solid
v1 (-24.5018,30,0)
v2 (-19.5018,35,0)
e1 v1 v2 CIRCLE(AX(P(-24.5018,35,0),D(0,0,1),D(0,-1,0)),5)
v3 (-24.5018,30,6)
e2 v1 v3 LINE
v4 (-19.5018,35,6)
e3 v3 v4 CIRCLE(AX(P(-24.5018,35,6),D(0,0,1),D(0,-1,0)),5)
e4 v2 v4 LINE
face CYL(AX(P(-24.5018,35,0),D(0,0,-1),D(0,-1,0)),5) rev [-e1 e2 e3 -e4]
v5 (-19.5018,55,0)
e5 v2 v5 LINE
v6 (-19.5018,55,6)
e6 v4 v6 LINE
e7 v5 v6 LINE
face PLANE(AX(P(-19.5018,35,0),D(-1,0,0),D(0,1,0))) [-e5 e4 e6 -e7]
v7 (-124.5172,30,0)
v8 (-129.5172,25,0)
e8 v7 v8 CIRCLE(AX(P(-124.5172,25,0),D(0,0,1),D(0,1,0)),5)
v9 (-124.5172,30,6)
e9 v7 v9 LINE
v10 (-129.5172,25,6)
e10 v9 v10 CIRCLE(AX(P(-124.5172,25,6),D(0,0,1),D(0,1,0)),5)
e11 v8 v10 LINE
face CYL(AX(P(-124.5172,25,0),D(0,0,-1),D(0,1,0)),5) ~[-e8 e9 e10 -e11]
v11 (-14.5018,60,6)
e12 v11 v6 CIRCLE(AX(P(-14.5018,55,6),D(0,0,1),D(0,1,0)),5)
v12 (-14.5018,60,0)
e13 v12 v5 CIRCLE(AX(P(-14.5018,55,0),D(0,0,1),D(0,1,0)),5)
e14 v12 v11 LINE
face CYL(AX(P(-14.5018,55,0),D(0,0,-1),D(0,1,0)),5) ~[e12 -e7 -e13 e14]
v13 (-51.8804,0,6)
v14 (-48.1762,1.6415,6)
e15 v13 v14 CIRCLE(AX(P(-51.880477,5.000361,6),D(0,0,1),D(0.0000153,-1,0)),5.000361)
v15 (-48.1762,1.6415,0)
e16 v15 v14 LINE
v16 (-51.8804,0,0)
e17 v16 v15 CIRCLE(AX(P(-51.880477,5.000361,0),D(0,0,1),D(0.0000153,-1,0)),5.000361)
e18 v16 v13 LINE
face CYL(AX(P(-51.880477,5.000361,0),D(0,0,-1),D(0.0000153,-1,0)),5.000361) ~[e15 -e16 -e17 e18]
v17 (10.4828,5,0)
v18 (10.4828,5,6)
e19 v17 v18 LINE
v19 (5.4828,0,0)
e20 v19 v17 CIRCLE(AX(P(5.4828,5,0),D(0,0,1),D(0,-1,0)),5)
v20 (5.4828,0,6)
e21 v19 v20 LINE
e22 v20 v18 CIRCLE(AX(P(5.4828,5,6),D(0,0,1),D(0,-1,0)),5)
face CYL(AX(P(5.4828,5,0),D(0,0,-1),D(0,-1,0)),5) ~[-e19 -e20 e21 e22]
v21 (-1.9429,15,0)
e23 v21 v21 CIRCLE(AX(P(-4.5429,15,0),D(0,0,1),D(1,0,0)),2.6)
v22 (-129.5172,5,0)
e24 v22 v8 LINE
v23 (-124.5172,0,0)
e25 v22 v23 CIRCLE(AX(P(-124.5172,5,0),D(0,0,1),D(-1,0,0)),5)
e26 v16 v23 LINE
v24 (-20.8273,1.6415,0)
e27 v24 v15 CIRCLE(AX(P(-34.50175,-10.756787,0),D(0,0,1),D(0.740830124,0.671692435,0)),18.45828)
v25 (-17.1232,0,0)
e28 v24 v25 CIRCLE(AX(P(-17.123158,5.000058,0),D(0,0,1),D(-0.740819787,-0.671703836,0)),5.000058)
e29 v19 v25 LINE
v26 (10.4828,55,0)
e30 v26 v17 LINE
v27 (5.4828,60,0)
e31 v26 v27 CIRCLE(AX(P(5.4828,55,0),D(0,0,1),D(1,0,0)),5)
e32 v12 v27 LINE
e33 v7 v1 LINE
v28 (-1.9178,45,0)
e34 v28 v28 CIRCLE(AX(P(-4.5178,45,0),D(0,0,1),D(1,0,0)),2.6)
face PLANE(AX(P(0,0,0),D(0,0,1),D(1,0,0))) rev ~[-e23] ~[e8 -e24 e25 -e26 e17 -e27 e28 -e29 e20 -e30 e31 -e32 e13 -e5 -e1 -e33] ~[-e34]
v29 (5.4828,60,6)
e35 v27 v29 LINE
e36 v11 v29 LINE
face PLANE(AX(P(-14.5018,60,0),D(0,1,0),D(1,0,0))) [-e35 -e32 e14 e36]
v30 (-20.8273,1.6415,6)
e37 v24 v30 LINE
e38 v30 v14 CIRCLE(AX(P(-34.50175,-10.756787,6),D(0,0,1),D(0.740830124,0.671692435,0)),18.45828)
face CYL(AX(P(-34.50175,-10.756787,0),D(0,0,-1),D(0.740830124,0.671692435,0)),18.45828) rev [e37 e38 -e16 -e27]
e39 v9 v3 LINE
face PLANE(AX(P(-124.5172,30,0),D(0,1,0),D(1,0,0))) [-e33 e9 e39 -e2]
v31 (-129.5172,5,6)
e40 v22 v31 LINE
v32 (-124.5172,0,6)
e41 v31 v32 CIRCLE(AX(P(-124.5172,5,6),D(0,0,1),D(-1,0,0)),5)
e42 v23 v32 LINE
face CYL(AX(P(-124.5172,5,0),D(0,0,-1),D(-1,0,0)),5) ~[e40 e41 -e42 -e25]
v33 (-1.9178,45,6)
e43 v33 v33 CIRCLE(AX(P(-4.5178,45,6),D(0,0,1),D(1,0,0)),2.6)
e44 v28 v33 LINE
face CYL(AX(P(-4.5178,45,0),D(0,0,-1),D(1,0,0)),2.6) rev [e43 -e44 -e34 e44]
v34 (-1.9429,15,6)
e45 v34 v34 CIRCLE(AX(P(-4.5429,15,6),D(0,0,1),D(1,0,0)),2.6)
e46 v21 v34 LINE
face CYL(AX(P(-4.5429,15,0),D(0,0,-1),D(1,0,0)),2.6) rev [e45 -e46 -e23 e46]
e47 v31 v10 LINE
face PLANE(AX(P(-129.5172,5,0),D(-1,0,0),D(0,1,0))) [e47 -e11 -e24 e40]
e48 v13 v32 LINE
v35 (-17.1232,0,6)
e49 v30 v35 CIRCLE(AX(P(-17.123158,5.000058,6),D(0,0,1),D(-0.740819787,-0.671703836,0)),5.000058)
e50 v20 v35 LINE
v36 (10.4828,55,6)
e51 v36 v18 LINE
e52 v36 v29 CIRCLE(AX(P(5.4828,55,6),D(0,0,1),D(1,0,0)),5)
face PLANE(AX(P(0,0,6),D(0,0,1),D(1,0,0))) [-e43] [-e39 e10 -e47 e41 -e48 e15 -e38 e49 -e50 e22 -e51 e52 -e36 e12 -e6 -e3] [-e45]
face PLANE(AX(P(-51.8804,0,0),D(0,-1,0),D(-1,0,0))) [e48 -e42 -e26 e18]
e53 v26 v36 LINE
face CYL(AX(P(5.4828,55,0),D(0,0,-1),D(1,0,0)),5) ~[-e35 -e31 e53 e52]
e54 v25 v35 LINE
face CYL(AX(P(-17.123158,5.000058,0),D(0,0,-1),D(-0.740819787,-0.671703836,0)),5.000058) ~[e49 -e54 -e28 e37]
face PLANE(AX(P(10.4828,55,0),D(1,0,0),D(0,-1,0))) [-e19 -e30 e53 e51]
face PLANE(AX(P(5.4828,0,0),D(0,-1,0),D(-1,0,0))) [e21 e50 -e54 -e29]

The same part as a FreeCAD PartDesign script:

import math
import FreeCAD as App
import Part
import Sketcher
from FreeCAD import Vector
Q = App.Units.Quantity

doc = App.newDocument("Part")
body = doc.addObject("PartDesign::Body", "Body")

# Sketch on XY plane
sketch1 = body.newObject("Sketcher::SketchObject", "Sketch")
sketch1.AttachmentSupport = (doc.getObject("XY_Plane"), [""])
sketch1.MapMode = "FlatFace"
sketch1.addGeometry([
    Part.LineSegment(Vector(-17.1, 0, 0), Vector(5.5, 0, 0)),  # 0
    Part.ArcOfCircle(Part.Circle(Vector(5.5, 5, 0), Vector(0, 0, 1), 5), math.radians(-90), math.radians(0)),  # 1
    Part.LineSegment(Vector(10.5, 5, 0), Vector(10.5, 55, 0)),  # 2
    Part.ArcOfCircle(Part.Circle(Vector(5.5, 55, 0), Vector(0, 0, 1), 5), math.radians(0), math.radians(90)),  # 3
    Part.LineSegment(Vector(5.5, 60, 0), Vector(-14.5, 60, 0)),  # 4
    Part.ArcOfCircle(Part.Circle(Vector(-14.5, 55, 0), Vector(0, 0, 1), 5), math.radians(90), math.radians(180)),  # 5
    Part.LineSegment(Vector(-19.5, 55, 0), Vector(-19.5, 35, 0)),  # 6
    Part.ArcOfCircle(Part.Circle(Vector(-24.5, 35, 0), Vector(0, 0, 1), 5), math.radians(-90), math.radians(0)),  # 7
    Part.LineSegment(Vector(-24.5, 30, 0), Vector(-124.5, 30, 0)),  # 8
    Part.ArcOfCircle(Part.Circle(Vector(-124.5, 25, 0), Vector(0, 0, 1), 5), math.radians(90), math.radians(180)),  # 9
    Part.LineSegment(Vector(-129.5, 25, 0), Vector(-129.5, 5, 0)),  # 10
    Part.ArcOfCircle(Part.Circle(Vector(-124.5, 5, 0), Vector(0, 0, 1), 5), math.radians(180), math.radians(270)),  # 11
    Part.LineSegment(Vector(-124.5, 0, 0), Vector(-51.9, 0, 0)),  # 12
    Part.ArcOfCircle(Part.Circle(Vector(-51.9, 5, 0), Vector(0, 0, 1), 5), math.radians(-90), math.radians(-42)),  # 13
    Part.ArcOfCircle(Part.Circle(Vector(-34.5, -10.8, 0), Vector(0, 0, 1), 18.5), math.radians(42), math.radians(138)),  # 14
    Part.ArcOfCircle(Part.Circle(Vector(-17.1, 5, 0), Vector(0, 0, 1), 5), math.radians(-138), math.radians(-90)),  # 15
    Part.Circle(Vector(-4.5, 15, 0), Vector(0, 0, 1), 2.6),  # 16
    Part.Circle(Vector(-4.5, 45, 0), Vector(0, 0, 1), 2.6),  # 17
], False)
sketch1.addConstraint([
    Sketcher.Constraint("Tangent", 0, 2, 1, 1),
    Sketcher.Constraint("Tangent", 1, 2, 2, 1),
    Sketcher.Constraint("Tangent", 2, 2, 3, 1),
    Sketcher.Constraint("Tangent", 3, 2, 4, 1),
    Sketcher.Constraint("Tangent", 4, 2, 5, 1),
    Sketcher.Constraint("Tangent", 5, 2, 6, 1),
    Sketcher.Constraint("Tangent", 6, 2, 7, 2),
    Sketcher.Constraint("Tangent", 7, 1, 8, 1),
    Sketcher.Constraint("Tangent", 8, 2, 9, 1),
    Sketcher.Constraint("Tangent", 9, 2, 10, 1),
    Sketcher.Constraint("Tangent", 10, 2, 11, 1),
    Sketcher.Constraint("Tangent", 11, 2, 12, 1),
    Sketcher.Constraint("Tangent", 12, 2, 13, 1),
    Sketcher.Constraint("Tangent", 13, 2, 14, 2),
    Sketcher.Constraint("Tangent", 14, 1, 15, 1),
    Sketcher.Constraint("Tangent", 15, 2, 0, 1),
    Sketcher.Constraint("Horizontal", 0),
    Sketcher.Constraint("Vertical", 2),
    Sketcher.Constraint("Horizontal", 4),
    Sketcher.Constraint("Vertical", 6),
    Sketcher.Constraint("Horizontal", 8),
    Sketcher.Constraint("Vertical", 10),
    Sketcher.Constraint("Horizontal", 12),
    Sketcher.Constraint("Equal", 1, 3),
    Sketcher.Constraint("Equal", 3, 5),
    Sketcher.Constraint("Equal", 5, 7),
    Sketcher.Constraint("Equal", 7, 9),
    Sketcher.Constraint("Equal", 9, 11),
    Sketcher.Constraint("Equal", 11, 13),
    Sketcher.Constraint("Equal", 13, 15),
    Sketcher.Constraint("Equal", 16, 17),
    Sketcher.Constraint("PointOnObject", 0, 2, -1),
    Sketcher.Constraint("PointOnObject", 11, 2, -1),
    Sketcher.Constraint("Equal", 6, 10),
    Sketcher.Constraint("Radius", 1, Q("5 mm")),
    Sketcher.Constraint("Diameter", 16, Q("5.2 mm")),
    Sketcher.Constraint("DistanceY", -1, 1, 3, 2, Q("60 mm")),
    Sketcher.Constraint("DistanceY", -1, 1, 16, 3, Q("15 mm")),
    Sketcher.Constraint("DistanceY", -1, 1, 17, 3, Q("45 mm")),
    Sketcher.Constraint("DistanceX", 9, 3, 1, 3, Q("130 mm")),
    Sketcher.Constraint("DistanceX", 14, 3, 7, 3, Q("10 mm")),
    Sketcher.Constraint("Radius", 14, Q("18.4584 mm")),
    Sketcher.Constraint("DistanceX", 0, 1, 0, 2, Q("22.606 mm")),
    Sketcher.Constraint("DistanceX", 14, 1, 0, 2, Q("26.31 mm")),
    Sketcher.Constraint("DistanceX", 16, 3, -1, 1, Q("4.543 mm")),
    Sketcher.Constraint("DistanceX", 7, 3, 16, 3, Q("19.959 mm")),
    Sketcher.Constraint("DistanceX", 5, 3, 17, 3, Q("9.984 mm")),
])
pad1 = body.newObject("PartDesign::Pad", "Pad")
pad1.Profile = sketch1
pad1.Length = 6

doc.recompute()
